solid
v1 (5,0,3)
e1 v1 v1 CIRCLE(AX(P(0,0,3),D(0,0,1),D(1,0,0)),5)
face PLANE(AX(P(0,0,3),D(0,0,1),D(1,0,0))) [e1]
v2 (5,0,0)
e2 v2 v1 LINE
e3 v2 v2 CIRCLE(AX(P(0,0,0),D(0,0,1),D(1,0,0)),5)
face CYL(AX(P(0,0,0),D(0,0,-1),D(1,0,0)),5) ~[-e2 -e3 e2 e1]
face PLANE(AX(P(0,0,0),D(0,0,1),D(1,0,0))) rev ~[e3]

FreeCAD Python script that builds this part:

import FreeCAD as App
import Part
import Sketcher
from FreeCAD import Vector

doc = App.newDocument("Part")
params = doc.addObject("Spreadsheet::Sheet", "Params")
for row, (alias, value) in enumerate([
    ("sketch1_diameter", "10 mm"),
    ("pad1_length", "3 mm"),
], start=1):
    params.set(f"A{row}", alias)
    params.set(f"B{row}", "=" + value)
    params.setAlias(f"B{row}", alias)

body = doc.addObject("PartDesign::Body", "Body")

# Sketch on XY plane
sketch1 = body.newObject("Sketcher::SketchObject", "Sketch")
sketch1.AttachmentSupport = (doc.getObject("XY_Plane"), [""])
sketch1.MapMode = "FlatFace"
sketch1.addGeometry(Part.Circle(Vector(0, 0, 0), Vector(0, 0, 1), 5), False)
sketch1.addConstraint([
    Sketcher.Constraint("Coincident", 0, 3, -1, 1),
    Sketcher.Constraint("Diameter", 0, 10.0),
])
sketch1.setExpression("Constraints[1]", "Params.sketch1_diameter")
pad1 = body.newObject("PartDesign::Pad", "Pad")
pad1.Profile = sketch1
pad1.setExpression("Length", "Params.pad1_length")

doc.recompute()
